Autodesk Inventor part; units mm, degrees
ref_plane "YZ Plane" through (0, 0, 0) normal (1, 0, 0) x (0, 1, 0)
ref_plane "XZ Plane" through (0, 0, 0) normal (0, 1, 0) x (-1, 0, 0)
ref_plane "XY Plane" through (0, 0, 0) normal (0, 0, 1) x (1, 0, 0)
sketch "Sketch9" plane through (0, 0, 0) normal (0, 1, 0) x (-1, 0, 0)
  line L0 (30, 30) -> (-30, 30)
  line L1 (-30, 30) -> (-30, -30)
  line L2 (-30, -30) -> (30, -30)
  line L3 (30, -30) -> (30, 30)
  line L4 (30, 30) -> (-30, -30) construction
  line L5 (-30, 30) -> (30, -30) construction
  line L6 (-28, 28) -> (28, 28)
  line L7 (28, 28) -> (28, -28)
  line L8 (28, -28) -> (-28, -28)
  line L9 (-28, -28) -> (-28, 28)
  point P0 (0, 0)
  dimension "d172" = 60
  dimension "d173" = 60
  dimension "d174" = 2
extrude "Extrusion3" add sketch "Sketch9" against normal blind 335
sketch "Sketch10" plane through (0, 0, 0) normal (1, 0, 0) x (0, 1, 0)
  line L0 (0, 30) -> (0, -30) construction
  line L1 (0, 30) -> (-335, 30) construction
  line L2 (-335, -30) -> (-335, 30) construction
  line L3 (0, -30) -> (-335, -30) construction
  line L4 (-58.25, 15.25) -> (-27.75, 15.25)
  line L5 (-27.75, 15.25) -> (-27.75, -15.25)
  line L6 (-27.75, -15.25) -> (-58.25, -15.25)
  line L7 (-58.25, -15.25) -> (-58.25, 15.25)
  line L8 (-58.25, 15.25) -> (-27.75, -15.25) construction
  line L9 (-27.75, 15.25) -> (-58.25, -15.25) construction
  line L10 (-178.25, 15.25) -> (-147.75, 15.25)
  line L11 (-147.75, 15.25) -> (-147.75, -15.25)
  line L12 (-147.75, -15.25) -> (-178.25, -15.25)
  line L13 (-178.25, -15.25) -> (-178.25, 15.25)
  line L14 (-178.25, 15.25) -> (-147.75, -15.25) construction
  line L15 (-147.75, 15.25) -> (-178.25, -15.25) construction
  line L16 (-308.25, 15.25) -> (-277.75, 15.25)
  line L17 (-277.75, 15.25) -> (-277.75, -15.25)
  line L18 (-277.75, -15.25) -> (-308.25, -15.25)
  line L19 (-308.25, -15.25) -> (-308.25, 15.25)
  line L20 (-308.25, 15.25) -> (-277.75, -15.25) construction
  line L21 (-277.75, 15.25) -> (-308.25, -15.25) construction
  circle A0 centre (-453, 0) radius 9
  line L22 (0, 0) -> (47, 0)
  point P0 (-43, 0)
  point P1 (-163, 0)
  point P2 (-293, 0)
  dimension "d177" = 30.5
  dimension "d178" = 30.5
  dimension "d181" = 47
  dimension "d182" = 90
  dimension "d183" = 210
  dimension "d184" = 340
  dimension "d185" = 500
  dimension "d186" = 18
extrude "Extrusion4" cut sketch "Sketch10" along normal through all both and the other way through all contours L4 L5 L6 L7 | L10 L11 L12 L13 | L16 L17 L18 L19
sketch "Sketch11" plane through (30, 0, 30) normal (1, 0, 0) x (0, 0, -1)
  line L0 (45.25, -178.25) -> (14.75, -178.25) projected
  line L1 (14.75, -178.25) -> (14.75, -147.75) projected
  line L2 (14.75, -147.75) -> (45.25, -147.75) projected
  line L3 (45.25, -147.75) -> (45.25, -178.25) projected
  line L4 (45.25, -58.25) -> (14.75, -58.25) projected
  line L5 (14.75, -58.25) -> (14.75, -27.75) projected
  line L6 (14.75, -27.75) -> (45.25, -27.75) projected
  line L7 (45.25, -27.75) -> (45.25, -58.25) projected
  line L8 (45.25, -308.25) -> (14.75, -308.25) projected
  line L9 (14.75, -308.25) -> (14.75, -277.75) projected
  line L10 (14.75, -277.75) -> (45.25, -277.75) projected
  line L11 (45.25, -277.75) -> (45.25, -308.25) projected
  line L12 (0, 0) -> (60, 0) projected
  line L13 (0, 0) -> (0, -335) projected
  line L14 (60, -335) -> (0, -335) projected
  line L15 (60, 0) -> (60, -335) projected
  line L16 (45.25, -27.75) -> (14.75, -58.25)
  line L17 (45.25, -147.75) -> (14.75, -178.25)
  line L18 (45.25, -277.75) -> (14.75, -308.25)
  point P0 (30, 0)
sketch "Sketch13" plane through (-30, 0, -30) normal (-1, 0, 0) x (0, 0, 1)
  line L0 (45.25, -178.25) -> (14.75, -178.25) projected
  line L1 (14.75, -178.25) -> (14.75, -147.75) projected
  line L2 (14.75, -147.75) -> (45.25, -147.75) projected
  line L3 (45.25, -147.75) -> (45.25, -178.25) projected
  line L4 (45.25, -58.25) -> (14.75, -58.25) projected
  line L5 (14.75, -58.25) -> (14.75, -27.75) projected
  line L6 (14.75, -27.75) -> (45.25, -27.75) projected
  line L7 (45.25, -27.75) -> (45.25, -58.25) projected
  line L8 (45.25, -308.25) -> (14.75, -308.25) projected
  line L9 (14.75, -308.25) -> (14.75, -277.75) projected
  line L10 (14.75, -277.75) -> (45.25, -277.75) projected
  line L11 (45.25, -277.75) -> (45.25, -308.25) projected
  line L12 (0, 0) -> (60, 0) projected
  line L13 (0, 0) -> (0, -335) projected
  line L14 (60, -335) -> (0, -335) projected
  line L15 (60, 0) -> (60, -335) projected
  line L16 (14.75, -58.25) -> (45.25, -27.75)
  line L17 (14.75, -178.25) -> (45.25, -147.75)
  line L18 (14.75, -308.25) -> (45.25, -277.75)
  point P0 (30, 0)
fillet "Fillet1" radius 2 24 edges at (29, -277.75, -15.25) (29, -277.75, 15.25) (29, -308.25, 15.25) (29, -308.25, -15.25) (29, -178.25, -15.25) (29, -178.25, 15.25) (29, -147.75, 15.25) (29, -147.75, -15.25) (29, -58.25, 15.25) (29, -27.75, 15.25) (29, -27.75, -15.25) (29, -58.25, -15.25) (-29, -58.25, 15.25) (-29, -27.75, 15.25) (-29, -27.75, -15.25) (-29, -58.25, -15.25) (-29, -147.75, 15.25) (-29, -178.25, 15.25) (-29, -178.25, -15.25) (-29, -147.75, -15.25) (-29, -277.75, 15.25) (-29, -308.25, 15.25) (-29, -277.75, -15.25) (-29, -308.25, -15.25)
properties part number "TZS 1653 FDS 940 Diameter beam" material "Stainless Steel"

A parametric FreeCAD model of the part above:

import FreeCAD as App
import Part
import Sketcher
from FreeCAD import Vector
Q = App.Units.Quantity


def edges_at(feature, points):
    """Names of the edges that pass closest to the given points."""
    edges = feature.Shape.Edges
    near = lambda p: min(range(len(edges)), key=lambda i: edges[i].distToShape(Part.Vertex(*p))[0])
    return sorted({f"Edge{near(p) + 1}" for p in points})

doc = App.newDocument("Part")
params = doc.addObject("Spreadsheet::Sheet", "Params")
for row, (alias, value) in enumerate([
    ("sketch1_width", "60 mm"),
    ("pad1_length", "335 mm"),
    ("sketch2_width", "30.5 mm"),
    ("fillet_radius", "2 mm"),
], start=1):
    params.set(f"A{row}", alias)
    params.set(f"B{row}", "=" + value)
    params.setAlias(f"B{row}", alias)

body = doc.addObject("PartDesign::Body", "Body")

sketch1 = body.newObject("Sketcher::SketchObject", "Sketch")
sketch1.AttachmentSupport = (doc.getObject("XZ_Plane"), [""])
sketch1.MapMode = "FlatFace"
sketch1.addGeometry(Part.LineSegment(Vector(-30, -30, 0), Vector(-30, 30, 0)), False)
sketch1.addGeometry(Part.LineSegment(Vector(-30, 30, 0), Vector(30, 30, 0)), False)
sketch1.addGeometry(Part.LineSegment(Vector(30, 30, 0), Vector(30, -30, 0)), False)
sketch1.addGeometry(Part.LineSegment(Vector(30, -30, 0), Vector(-30, -30, 0)), False)
sketch1.addGeometry(Part.LineSegment(Vector(28, -28, 0), Vector(28, 28, 0)), False)
sketch1.addGeometry(Part.LineSegment(Vector(28, 28, 0), Vector(-28, 28, 0)), False)
sketch1.addGeometry(Part.LineSegment(Vector(-28, 28, 0), Vector(-28, -28, 0)), False)
sketch1.addGeometry(Part.LineSegment(Vector(-28, -28, 0), Vector(28, -28, 0)), False)
sketch1.addConstraint(Sketcher.Constraint("Coincident", 0, 2, 1, 1))
sketch1.addConstraint(Sketcher.Constraint("Coincident", 1, 2, 2, 1))
sketch1.addConstraint(Sketcher.Constraint("Coincident", 2, 2, 3, 1))
sketch1.addConstraint(Sketcher.Constraint("Coincident", 3, 2, 0, 1))
sketch1.addConstraint(Sketcher.Constraint("Coincident", 4, 2, 5, 1))
sketch1.addConstraint(Sketcher.Constraint("Coincident", 5, 2, 6, 1))
sketch1.addConstraint(Sketcher.Constraint("Coincident", 6, 2, 7, 1))
sketch1.addConstraint(Sketcher.Constraint("Coincident", 7, 2, 4, 1))
sketch1.addConstraint(Sketcher.Constraint("Vertical", 0))
sketch1.addConstraint(Sketcher.Constraint("Horizontal", 1))
sketch1.addConstraint(Sketcher.Constraint("Vertical", 2))
sketch1.addConstraint(Sketcher.Constraint("Horizontal", 3))
sketch1.addConstraint(Sketcher.Constraint("Vertical", 4))
sketch1.addConstraint(Sketcher.Constraint("Horizontal", 5))
sketch1.addConstraint(Sketcher.Constraint("Vertical", 6))
sketch1.addConstraint(Sketcher.Constraint("Horizontal", 7))
sketch1.addConstraint(Sketcher.Constraint("Symmetric", 0, 2, 2, 2, -1, 1))
sketch1.addConstraint(Sketcher.Constraint("Symmetric", 4, 2, 6, 2, -1, 1))
sketch1.addConstraint(Sketcher.Constraint("Equal", 3, 0))
sketch1.addConstraint(Sketcher.Constraint("Equal", 7, 4))
sketch1.addConstraint(Sketcher.Constraint("DistanceX", 1, 1, 1, 2, Q("60 mm")))
sketch1.addConstraint(Sketcher.Constraint("DistanceX", 4, 2, 1, 2, Q("2 mm")))
sketch1.setExpression("Constraints[20]", "Params.sketch1_width")
pad1 = body.newObject("PartDesign::Pad", "Pad")
pad1.Profile = sketch1
pad1.setExpression("Length", "Params.pad1_length")

sketch2 = body.newObject("Sketcher::SketchObject", "Sketch001")
sketch2.AttachmentSupport = (doc.getObject("YZ_Plane"), [""])
sketch2.MapMode = "FlatFace"
sketch2.addGeometry(Part.LineSegment(Vector(-28, 15, 0), Vector(-58, 15, 0)), False)
sketch2.addGeometry(Part.LineSegment(Vector(-58, 15, 0), Vector(-58, -15, 0)), False)
sketch2.addGeometry(Part.LineSegment(Vector(-58, -15, 0), Vector(-28, -15, 0)), False)
sketch2.addGeometry(Part.LineSegment(Vector(-28, -15, 0), Vector(-28, 15, 0)), False)
sketch2.addGeometry(Part.LineSegment(Vector(-148, 15, 0), Vector(-178, 15, 0)), False)
sketch2.addGeometry(Part.LineSegment(Vector(-178, 15, 0), Vector(-178, -15, 0)), False)
sketch2.addGeometry(Part.LineSegment(Vector(-178, -15, 0), Vector(-148, -15, 0)), False)
sketch2.addGeometry(Part.LineSegment(Vector(-148, -15, 0), Vector(-148, 15, 0)), False)
sketch2.addGeometry(Part.LineSegment(Vector(-278, 15, 0), Vector(-308, 15, 0)), False)
sketch2.addGeometry(Part.LineSegment(Vector(-308, 15, 0), Vector(-308, -15, 0)), False)
sketch2.addGeometry(Part.LineSegment(Vector(-308, -15, 0), Vector(-278, -15, 0)), False)
sketch2.addGeometry(Part.LineSegment(Vector(-278, -15, 0), Vector(-278, 15, 0)), False)
sketch2.addConstraint(Sketcher.Constraint("Coincident", 0, 2, 1, 1))
sketch2.addConstraint(Sketcher.Constraint("Coincident", 1, 2, 2, 1))
sketch2.addConstraint(Sketcher.Constraint("Coincident", 2, 2, 3, 1))
sketch2.addConstraint(Sketcher.Constraint("Coincident", 3, 2, 0, 1))
sketch2.addConstraint(Sketcher.Constraint("Coincident", 4, 2, 5, 1))
sketch2.addConstraint(Sketcher.Constraint("Coincident", 5, 2, 6, 1))
sketch2.addConstraint(Sketcher.Constraint("Coincident", 6, 2, 7, 1))
sketch2.addConstraint(Sketcher.Constraint("Coincident", 7, 2, 4, 1))
sketch2.addConstraint(Sketcher.Constraint("Coincident", 8, 2, 9, 1))
sketch2.addConstraint(Sketcher.Constraint("Coincident", 9, 2, 10, 1))
sketch2.addConstraint(Sketcher.Constraint("Coincident", 10, 2, 11, 1))
sketch2.addConstraint(Sketcher.Constraint("Coincident", 11, 2, 8, 1))
sketch2.addConstraint(Sketcher.Constraint("Horizontal", 0))
sketch2.addConstraint(Sketcher.Constraint("Vertical", 1))
sketch2.addConstraint(Sketcher.Constraint("Horizontal", 2))
sketch2.addConstraint(Sketcher.Constraint("Vertical", 3))
sketch2.addConstraint(Sketcher.Constraint("Horizontal", 4))
sketch2.addConstraint(Sketcher.Constraint("Vertical", 5))
sketch2.addConstraint(Sketcher.Constraint("Horizontal", 6))
sketch2.addConstraint(Sketcher.Constraint("Vertical", 7))
sketch2.addConstraint(Sketcher.Constraint("Horizontal", 8))
sketch2.addConstraint(Sketcher.Constraint("Vertical", 9))
sketch2.addConstraint(Sketcher.Constraint("Horizontal", 10))
sketch2.addConstraint(Sketcher.Constraint("Vertical", 11))
sketch2.addConstraint(Sketcher.Constraint("Horizontal", 3, 2, 4, 2))
sketch2.addConstraint(Sketcher.Constraint("Horizontal", 2, 2, 5, 2))
sketch2.addConstraint(Sketcher.Constraint("Horizontal", 7, 2, 8, 2))
sketch2.addConstraint(Sketcher.Constraint("Horizontal", 6, 2, 9, 2))
sketch2.addConstraint(Sketcher.Constraint("Equal", 2, 4))
sketch2.addConstraint(Sketcher.Constraint("Equal", 6, 8))
sketch2.addConstraint(Sketcher.Constraint("Equal", 10, 1))
sketch2.addConstraint(Sketcher.Constraint("DistanceX", 0, 2, 0, 1, Q("30.5 mm")))
sketch2.addConstraint(Sketcher.Constraint("DistanceX", 4, 2, 0, 2, Q("120 mm")))
sketch2.addConstraint(Sketcher.Constraint("DistanceX", 8, 2, 4, 2, Q("130 mm")))
sketch2.addConstraint(Sketcher.Constraint("DistanceX", 0, 2, -1, 1, Q("58.25 mm")))
sketch2.addConstraint(Sketcher.Constraint("DistanceY", -1, 1, 0, 2, Q("15.25 mm")))
sketch2.setExpression("Constraints[31]", "Params.sketch2_width")
pocket1 = body.newObject("PartDesign::Pocket", "Pocket")
pocket1.Profile = sketch2
pocket1.Type = "ThroughAll"
pocket1.Midplane = True
doc.recompute()

fillet = body.newObject("PartDesign::Fillet", "Fillet")
fillet.Base = (pocket1, edges_at(pocket1, [
    (29, -277.75, -15.25),
    (29, -277.75, 15.25),
    (29, -308.25, 15.25),
    (29, -308.25, -15.25),
    (29, -178.25, -15.25),
    (29, -178.25, 15.25),
    (29, -147.75, 15.25),
    (29, -147.75, -15.25),
    (29, -58.25, 15.25),
    (29, -27.75, 15.25),
    (29, -27.75, -15.25),
    (29, -58.25, -15.25),
    (-29, -58.25, 15.25),
    (-29, -27.75, 15.25),
    (-29, -27.75, -15.25),
    (-29, -58.25, -15.25),
    (-29, -147.75, 15.25),
    (-29, -178.25, 15.25),
    (-29, -178.25, -15.25),
    (-29, -147.75, -15.25),
    (-29, -277.75, 15.25),
    (-29, -308.25, 15.25),
    (-29, -277.75, -15.25),
    (-29, -308.25, -15.25),
]))
fillet.setExpression("Radius", "Params.fillet_radius")

doc.recompute()
